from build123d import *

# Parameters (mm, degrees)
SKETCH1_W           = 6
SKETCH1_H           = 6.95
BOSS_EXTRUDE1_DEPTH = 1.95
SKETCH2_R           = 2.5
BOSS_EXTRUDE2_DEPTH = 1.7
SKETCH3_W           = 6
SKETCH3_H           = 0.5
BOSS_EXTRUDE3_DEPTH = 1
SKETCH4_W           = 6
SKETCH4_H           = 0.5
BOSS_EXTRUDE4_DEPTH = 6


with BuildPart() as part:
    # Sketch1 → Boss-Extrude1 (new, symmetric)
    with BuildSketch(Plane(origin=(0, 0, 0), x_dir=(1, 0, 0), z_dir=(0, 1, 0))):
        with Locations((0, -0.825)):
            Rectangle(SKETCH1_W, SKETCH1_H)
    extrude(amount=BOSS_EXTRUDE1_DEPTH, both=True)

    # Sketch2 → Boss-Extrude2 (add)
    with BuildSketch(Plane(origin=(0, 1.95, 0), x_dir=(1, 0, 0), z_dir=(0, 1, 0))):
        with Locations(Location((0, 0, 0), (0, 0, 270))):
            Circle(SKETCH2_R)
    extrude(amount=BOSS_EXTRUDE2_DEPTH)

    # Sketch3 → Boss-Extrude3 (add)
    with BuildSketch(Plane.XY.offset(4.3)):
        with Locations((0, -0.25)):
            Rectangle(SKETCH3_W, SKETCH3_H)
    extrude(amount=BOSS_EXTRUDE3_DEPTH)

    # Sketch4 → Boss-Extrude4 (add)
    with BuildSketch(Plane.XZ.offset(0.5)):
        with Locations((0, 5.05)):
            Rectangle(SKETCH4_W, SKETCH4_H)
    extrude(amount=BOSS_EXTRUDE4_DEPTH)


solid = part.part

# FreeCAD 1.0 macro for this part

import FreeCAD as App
import Part
import Sketcher
from FreeCAD import Vector


def add_polygon(sketch, points):
    """Adds a closed chain of lines whose ends are joined by coincident constraints."""
    first, n = sketch.GeometryCount, len(points)
    for a, b in zip(points, points[1:] + points[:1]):
        sketch.addGeometry(Part.LineSegment(App.Vector(*a, 0), App.Vector(*b, 0)), False)
    for i in range(n):
        sketch.addConstraint(Sketcher.Constraint("Coincident", first + i, 2, first + (i + 1) % n, 1))

doc = App.newDocument("Part")
body = doc.addObject("PartDesign::Body", "Body")

# Sketch on XZ plane
sketch1 = body.newObject("Sketcher::SketchObject", "Sketch")
sketch1.AttachmentSupport = (doc.getObject("XZ_Plane"), [""])
sketch1.MapMode = "FlatFace"
add_polygon(sketch1, [(-3, -2.65), (-3, 4.3), (3, 4.3), (3, -2.65)])  # lines 0-3
sketch1.addConstraint([
    Sketcher.Constraint("Vertical", 0),
    Sketcher.Constraint("Horizontal", 1),
    Sketcher.Constraint("Vertical", 2),
    Sketcher.Constraint("Horizontal", 3),
    Sketcher.Constraint("DistanceX", 1, 1, 1, 2, 6.0),
    Sketcher.Constraint("DistanceX", 0, 2, -1, 1, 3.0),
    Sketcher.Constraint("DistanceY", 0, 1, 0, 2, 6.95),
    Sketcher.Constraint("DistanceY", -1, 1, 0, 2, 4.3),
])
pad1 = body.newObject("PartDesign::Pad", "Pad")
pad1.Profile = sketch1
pad1.Length = 3.9
pad1.Midplane = True

# Sketch on XZ plane
sketch2 = body.newObject("Sketcher::SketchObject", "Sketch001")
sketch2.AttachmentSupport = (doc.getObject("XZ_Plane"), [""])
sketch2.MapMode = "FlatFace"
sketch2.AttachmentOffset = App.Placement(Vector(0, 0, -1.95), App.Rotation())
sketch2.addGeometry(Part.Circle(Vector(0, 0, 0), Vector(0, 0, 1), 2.5), False)
sketch2.addConstraint([
    Sketcher.Constraint("Coincident", 0, 3, -1, 1),
    Sketcher.Constraint("Diameter", 0, 5.0),
])
pad2 = body.newObject("PartDesign::Pad", "Pad001")
pad2.Profile = sketch2
pad2.Length = 1.7
pad2.Reversed = True

# Sketch on XY plane
sketch3 = body.newObject("Sketcher::SketchObject", "Sketch002")
sketch3.AttachmentSupport = (doc.getObject("XY_Plane"), [""])
sketch3.MapMode = "FlatFace"
sketch3.AttachmentOffset = App.Placement(Vector(0, 0, 4.3), App.Rotation())
add_polygon(sketch3, [(-3, 0), (-3, -0.5), (3, -0.5), (3, 0)])  # lines 0-3
sketch3.addConstraint([
    Sketcher.Constraint("Vertical", 0),
    Sketcher.Constraint("Horizontal", 1),
    Sketcher.Constraint("Vertical", 2),
    Sketcher.Constraint("Horizontal", 3),
    Sketcher.Constraint("Symmetric", 2, 2, 3, 2, -1, 1),
    Sketcher.Constraint("DistanceX", 1, 1, 1, 2, 6.0),
    Sketcher.Constraint("DistanceY", 0, 2, 0, 1, 0.5),
])
pad3 = body.newObject("PartDesign::Pad", "Pad002")
pad3.Profile = sketch3
pad3.Length = 1

# Sketch on XZ plane
sketch4 = body.newObject("Sketcher::SketchObject", "Sketch003")
sketch4.AttachmentSupport = (doc.getObject("XZ_Plane"), [""])
sketch4.MapMode = "FlatFace"
sketch4.AttachmentOffset = App.Placement(Vector(0, 0, 0.5), App.Rotation())
add_polygon(sketch4, [(-3, 5.3), (-3, 4.8), (3, 4.8), (3, 5.3)])  # lines 0-3
sketch4.addConstraint([
    Sketcher.Constraint("Vertical", 0),
    Sketcher.Constraint("Horizontal", 1),
    Sketcher.Constraint("Vertical", 2),
    Sketcher.Constraint("Horizontal", 3),
    Sketcher.Constraint("DistanceX", 1, 1, 1, 2, 6.0),
    Sketcher.Constraint("DistanceY", 0, 2, 0, 1, 0.5),
    Sketcher.Constraint("DistanceX", 0, 2, -1, 1, 3.0),
    Sketcher.Constraint("DistanceY", -1, 1, 0, 2, 4.8),
])
pad4 = body.newObject("PartDesign::Pad", "Pad003")
pad4.Profile = sketch4
pad4.Length = 6

doc.recompute()
